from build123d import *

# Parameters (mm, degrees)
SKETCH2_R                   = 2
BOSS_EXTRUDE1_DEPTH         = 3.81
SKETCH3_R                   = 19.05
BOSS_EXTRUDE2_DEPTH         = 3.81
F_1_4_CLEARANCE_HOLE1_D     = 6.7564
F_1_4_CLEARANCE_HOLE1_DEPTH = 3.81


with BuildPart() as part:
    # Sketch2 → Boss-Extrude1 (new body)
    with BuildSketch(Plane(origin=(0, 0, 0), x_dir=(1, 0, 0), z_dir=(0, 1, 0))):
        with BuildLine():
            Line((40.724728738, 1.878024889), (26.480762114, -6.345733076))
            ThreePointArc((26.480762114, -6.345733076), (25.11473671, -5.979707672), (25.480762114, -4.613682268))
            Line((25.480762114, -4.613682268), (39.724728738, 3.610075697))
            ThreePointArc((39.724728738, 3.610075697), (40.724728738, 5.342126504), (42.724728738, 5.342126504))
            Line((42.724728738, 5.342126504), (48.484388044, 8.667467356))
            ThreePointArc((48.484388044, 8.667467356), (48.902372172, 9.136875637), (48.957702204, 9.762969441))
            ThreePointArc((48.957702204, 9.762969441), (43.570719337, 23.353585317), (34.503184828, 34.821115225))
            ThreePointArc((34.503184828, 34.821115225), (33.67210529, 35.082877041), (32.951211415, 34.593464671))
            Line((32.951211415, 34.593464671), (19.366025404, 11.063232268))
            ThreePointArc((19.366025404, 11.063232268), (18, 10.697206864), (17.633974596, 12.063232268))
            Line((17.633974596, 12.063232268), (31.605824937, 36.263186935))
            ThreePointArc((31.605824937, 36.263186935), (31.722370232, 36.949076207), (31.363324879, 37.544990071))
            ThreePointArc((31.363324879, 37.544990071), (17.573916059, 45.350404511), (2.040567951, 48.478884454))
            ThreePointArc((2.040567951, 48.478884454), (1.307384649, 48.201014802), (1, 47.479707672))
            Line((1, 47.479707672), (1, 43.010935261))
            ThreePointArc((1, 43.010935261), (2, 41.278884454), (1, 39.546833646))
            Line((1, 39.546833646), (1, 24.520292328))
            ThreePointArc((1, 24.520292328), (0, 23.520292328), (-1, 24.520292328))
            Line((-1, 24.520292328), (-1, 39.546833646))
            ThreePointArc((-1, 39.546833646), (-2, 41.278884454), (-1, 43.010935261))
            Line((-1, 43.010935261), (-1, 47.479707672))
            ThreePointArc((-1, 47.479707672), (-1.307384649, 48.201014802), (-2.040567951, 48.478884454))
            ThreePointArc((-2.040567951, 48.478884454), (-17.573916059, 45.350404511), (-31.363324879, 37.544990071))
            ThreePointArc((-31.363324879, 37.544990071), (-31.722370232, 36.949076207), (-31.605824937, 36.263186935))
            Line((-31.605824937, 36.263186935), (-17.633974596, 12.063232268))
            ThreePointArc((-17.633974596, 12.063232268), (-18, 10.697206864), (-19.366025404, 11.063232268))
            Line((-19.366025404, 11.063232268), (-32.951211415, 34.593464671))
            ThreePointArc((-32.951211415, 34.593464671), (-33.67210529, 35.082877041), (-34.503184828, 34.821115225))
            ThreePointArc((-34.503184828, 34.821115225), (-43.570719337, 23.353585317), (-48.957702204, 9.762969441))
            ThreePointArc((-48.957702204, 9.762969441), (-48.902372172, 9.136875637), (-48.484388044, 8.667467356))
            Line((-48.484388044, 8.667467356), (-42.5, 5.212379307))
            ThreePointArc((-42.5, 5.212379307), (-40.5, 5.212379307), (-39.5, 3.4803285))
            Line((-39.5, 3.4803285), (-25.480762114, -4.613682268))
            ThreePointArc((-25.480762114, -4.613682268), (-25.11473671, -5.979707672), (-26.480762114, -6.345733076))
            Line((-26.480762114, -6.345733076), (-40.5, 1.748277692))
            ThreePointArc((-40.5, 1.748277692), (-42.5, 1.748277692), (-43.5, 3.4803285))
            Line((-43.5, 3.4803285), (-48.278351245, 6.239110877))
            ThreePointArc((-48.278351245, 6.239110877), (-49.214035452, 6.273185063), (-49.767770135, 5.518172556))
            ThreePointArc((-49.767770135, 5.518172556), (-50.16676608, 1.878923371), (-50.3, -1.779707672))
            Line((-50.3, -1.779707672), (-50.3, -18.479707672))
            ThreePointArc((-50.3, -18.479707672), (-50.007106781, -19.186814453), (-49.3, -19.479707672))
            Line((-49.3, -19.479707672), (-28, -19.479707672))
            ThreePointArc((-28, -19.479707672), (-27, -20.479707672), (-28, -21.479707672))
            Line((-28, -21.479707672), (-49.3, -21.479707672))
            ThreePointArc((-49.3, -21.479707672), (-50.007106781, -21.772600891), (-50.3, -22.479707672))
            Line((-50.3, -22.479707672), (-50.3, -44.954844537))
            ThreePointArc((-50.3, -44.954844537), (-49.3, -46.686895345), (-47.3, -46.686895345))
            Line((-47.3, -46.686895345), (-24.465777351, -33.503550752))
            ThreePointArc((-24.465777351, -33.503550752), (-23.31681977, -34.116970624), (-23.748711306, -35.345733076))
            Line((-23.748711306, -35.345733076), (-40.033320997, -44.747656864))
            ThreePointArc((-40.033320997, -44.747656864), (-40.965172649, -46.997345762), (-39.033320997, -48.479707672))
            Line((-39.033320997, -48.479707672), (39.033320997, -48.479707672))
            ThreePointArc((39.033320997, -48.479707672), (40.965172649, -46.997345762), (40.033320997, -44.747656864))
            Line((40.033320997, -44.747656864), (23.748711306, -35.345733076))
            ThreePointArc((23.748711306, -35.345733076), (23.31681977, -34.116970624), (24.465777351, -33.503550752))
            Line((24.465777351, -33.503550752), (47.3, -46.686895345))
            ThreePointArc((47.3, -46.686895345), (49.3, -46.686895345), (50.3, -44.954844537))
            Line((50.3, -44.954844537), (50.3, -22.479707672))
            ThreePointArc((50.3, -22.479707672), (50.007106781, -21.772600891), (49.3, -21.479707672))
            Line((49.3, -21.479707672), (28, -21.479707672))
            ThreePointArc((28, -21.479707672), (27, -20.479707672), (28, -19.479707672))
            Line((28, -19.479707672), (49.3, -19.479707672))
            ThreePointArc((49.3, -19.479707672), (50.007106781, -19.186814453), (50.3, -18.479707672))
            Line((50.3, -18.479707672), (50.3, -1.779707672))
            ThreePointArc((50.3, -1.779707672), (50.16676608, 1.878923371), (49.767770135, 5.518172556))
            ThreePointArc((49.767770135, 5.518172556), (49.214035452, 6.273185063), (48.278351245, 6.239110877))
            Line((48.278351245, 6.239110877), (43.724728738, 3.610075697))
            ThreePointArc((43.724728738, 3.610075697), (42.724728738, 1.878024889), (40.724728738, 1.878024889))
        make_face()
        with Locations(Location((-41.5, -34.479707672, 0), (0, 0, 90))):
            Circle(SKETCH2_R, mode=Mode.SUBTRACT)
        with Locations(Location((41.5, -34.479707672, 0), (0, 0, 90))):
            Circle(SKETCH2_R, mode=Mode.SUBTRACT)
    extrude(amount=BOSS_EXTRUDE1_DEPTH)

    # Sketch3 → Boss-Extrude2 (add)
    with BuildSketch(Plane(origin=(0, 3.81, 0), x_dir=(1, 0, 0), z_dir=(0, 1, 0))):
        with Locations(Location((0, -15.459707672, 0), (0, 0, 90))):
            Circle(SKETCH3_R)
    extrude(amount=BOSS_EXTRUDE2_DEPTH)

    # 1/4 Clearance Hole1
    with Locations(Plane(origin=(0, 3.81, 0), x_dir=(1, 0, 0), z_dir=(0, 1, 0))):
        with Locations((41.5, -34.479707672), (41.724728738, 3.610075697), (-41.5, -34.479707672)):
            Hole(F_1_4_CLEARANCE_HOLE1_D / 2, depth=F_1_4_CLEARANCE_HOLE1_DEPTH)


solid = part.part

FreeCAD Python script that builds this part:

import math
import FreeCAD as App
import Part
import Sketcher
Q = App.Units.Quantity

doc = App.newDocument("Part")
body = doc.addObject("PartDesign::Body", "Body")

# Sketch on XZ plane
sketch1 = body.newObject("Sketcher::SketchObject", "Sketch")
sketch1.AttachmentSupport = (doc.getObject("XZ_Plane"), [""])
sketch1.MapMode = "FlatFace"
sketch1.addGeometry(Part.LineSegment(App.Vector(40.7, -1.9, 0), App.Vector(26.5, 6.3, 0)), False)
sketch1.addGeometry(Part.ArcOfCircle(Part.Circle(App.Vector(26, 5.5, 0), App.Vector(0, 0, 1), 1), math.radians(60), math.radians(240)), False)
sketch1.addGeometry(Part.LineSegment(App.Vector(25.5, 4.6, 0), App.Vector(39.7, -3.6, 0)), False)
sketch1.addGeometry(Part.ArcOfCircle(Part.Circle(App.Vector(41.7, -3.6, 0), App.Vector(0, 0, 1), 2), math.radians(-180), math.radians(-60)), False)
sketch1.addGeometry(Part.LineSegment(App.Vector(42.7, -5.3, 0), App.Vector(48.5, -8.7, 0)), False)
sketch1.addGeometry(Part.ArcOfCircle(Part.Circle(App.Vector(48, -9.5, 0), App.Vector(0, 0, 1), 1), math.radians(-13), math.radians(60)), False)
sketch1.addGeometry(Part.ArcOfCircle(Part.Circle(App.Vector(0, 1.8, 0), App.Vector(0, 0, 1), 50.3), math.radians(-47), math.radians(-13)), False)
sketch1.addGeometry(Part.ArcOfCircle(Part.Circle(App.Vector(33.8, -34.1, 0), App.Vector(0, 0, 1), 1), math.radians(-150), math.radians(-47)), False)
sketch1.addGeometry(Part.LineSegment(App.Vector(33, -34.6, 0), App.Vector(19.4, -11.1, 0)), False)
sketch1.addGeometry(Part.ArcOfCircle(Part.Circle(App.Vector(18.5, -11.6, 0), App.Vector(0, 0, 1), 1), math.radians(30), math.radians(210)), False)
sketch1.addGeometry(Part.LineSegment(App.Vector(17.6, -12.1, 0), App.Vector(31.6, -36.3, 0)), False)
sketch1.addGeometry(Part.ArcOfCircle(Part.Circle(App.Vector(30.7, -36.8, 0), App.Vector(0, 0, 1), 1), math.radians(-51), math.radians(30)), False)
sketch1.addGeometry(Part.ArcOfCircle(Part.Circle(App.Vector(0, 1.8, 0), App.Vector(0, 0, 1), 50.3), math.radians(-88), math.radians(-51)), False)
sketch1.addGeometry(Part.ArcOfCircle(Part.Circle(App.Vector(2, -47.5, 0), App.Vector(0, 0, 1), 1), math.radians(180), math.radians(272)), False)
sketch1.addGeometry(Part.LineSegment(App.Vector(1, -47.5, 0), App.Vector(1, -43, 0)), False)
sketch1.addGeometry(Part.ArcOfCircle(Part.Circle(App.Vector(0, -41.3, 0), App.Vector(0, 0, 1), 2), math.radians(-60), math.radians(60)), False)
sketch1.addGeometry(Part.LineSegment(App.Vector(1, -39.5, 0), App.Vector(1, -24.5, 0)), False)
sketch1.addGeometry(Part.ArcOfCircle(Part.Circle(App.Vector(0, -24.5, 0), App.Vector(0, 0, 1), 1), math.radians(0), math.radians(180)), False)
sketch1.addGeometry(Part.LineSegment(App.Vector(-1, -24.5, 0), App.Vector(-1, -39.5, 0)), False)
sketch1.addGeometry(Part.ArcOfCircle(Part.Circle(App.Vector(0, -41.3, 0), App.Vector(0, 0, 1), 2), math.radians(120), math.radians(240)), False)
sketch1.addGeometry(Part.LineSegment(App.Vector(-1, -43, 0), App.Vector(-1, -47.5, 0)), False)
sketch1.addGeometry(Part.ArcOfCircle(Part.Circle(App.Vector(-2, -47.5, 0), App.Vector(0, 0, 1), 1), math.radians(-92), math.radians(0)), False)
sketch1.addGeometry(Part.ArcOfCircle(Part.Circle(App.Vector(0, 1.8, 0), App.Vector(0, 0, 1), 50.3), math.radians(-129), math.radians(-92)), False)
sketch1.addGeometry(Part.ArcOfCircle(Part.Circle(App.Vector(-30.7, -36.8, 0), App.Vector(0, 0, 1), 1), math.radians(150), math.radians(231)), False)
sketch1.addGeometry(Part.LineSegment(App.Vector(-31.6, -36.3, 0), App.Vector(-17.6, -12.1, 0)), False)
sketch1.addGeometry(Part.ArcOfCircle(Part.Circle(App.Vector(-18.5, -11.6, 0), App.Vector(0, 0, 1), 1), math.radians(-30), math.radians(150)), False)
sketch1.addGeometry(Part.LineSegment(App.Vector(-19.4, -11.1, 0), App.Vector(-33, -34.6, 0)), False)
sketch1.addGeometry(Part.ArcOfCircle(Part.Circle(App.Vector(-33.8, -34.1, 0), App.Vector(0, 0, 1), 1), math.radians(-133), math.radians(-30)), False)
sketch1.addGeometry(Part.ArcOfCircle(Part.Circle(App.Vector(0, 1.8, 0), App.Vector(0, 0, 1), 50.3), math.radians(-167), math.radians(-133)), False)
sketch1.addGeometry(Part.ArcOfCircle(Part.Circle(App.Vector(-48, -9.5, 0), App.Vector(0, 0, 1), 1), math.radians(120), math.radians(193)), False)
sketch1.addGeometry(Part.LineSegment(App.Vector(-48.5, -8.7, 0), App.Vector(-42.5, -5.2, 0)), False)
sketch1.addGeometry(Part.ArcOfCircle(Part.Circle(App.Vector(-41.5, -3.5, 0), App.Vector(0, 0, 1), 2), math.radians(-120), math.radians(0)), False)
sketch1.addGeometry(Part.LineSegment(App.Vector(-39.5, -3.5, 0), App.Vector(-25.5, 4.6, 0)), False)
sketch1.addGeometry(Part.ArcOfCircle(Part.Circle(App.Vector(-26, 5.5, 0), App.Vector(0, 0, 1), 1), math.radians(-60), math.radians(120)), False)
sketch1.addGeometry(Part.LineSegment(App.Vector(-26.5, 6.3, 0), App.Vector(-40.5, -1.7, 0)), False)
sketch1.addGeometry(Part.ArcOfCircle(Part.Circle(App.Vector(-41.5, -3.5, 0), App.Vector(0, 0, 1), 2), math.radians(60), math.radians(180)), False)
sketch1.addGeometry(Part.LineSegment(App.Vector(-43.5, -3.5, 0), App.Vector(-48.3, -6.2, 0)), False)
sketch1.addGeometry(Part.ArcOfCircle(Part.Circle(App.Vector(-48.8, -5.4, 0), App.Vector(0, 0, 1), 1), math.radians(-172), math.radians(-60)), False)
sketch1.addGeometry(Part.ArcOfCircle(Part.Circle(App.Vector(0, 1.8, 0), App.Vector(0, 0, 1), 50.3), math.radians(180), math.radians(188.34)), False)
sketch1.addGeometry(Part.LineSegment(App.Vector(-50.3, 1.8, 0), App.Vector(-50.3, 18.5, 0)), False)
sketch1.addGeometry(Part.ArcOfCircle(Part.Circle(App.Vector(-49.3, 18.5, 0), App.Vector(0, 0, 1), 1), math.radians(90), math.radians(180)), False)
sketch1.addGeometry(Part.LineSegment(App.Vector(-49.3, 19.5, 0), App.Vector(-28, 19.5, 0)), False)
sketch1.addGeometry(Part.ArcOfCircle(Part.Circle(App.Vector(-28, 20.5, 0), App.Vector(0, 0, 1), 1), math.radians(-90), math.radians(90)), False)
sketch1.addGeometry(Part.LineSegment(App.Vector(-28, 21.5, 0), App.Vector(-49.3, 21.5, 0)), False)
sketch1.addGeometry(Part.ArcOfCircle(Part.Circle(App.Vector(-49.3, 22.5, 0), App.Vector(0, 0, 1), 1), math.radians(-180), math.radians(-90)), False)
sketch1.addGeometry(Part.LineSegment(App.Vector(-50.3, 22.5, 0), App.Vector(-50.3, 45, 0)), False)
sketch1.addGeometry(Part.ArcOfCircle(Part.Circle(App.Vector(-48.3, 45, 0), App.Vector(0, 0, 1), 2), math.radians(60), math.radians(180)), False)
sketch1.addGeometry(Part.LineSegment(App.Vector(-47.3, 46.7, 0), App.Vector(-24.5, 33.5, 0)), False)
sketch1.addGeometry(Part.ArcOfCircle(Part.Circle(App.Vector(-24.2, 34.5, 0), App.Vector(0, 0, 1), 1), math.radians(-103), math.radians(60)), False)
sketch1.addGeometry(Part.LineSegment(App.Vector(-23.7, 35.3, 0), App.Vector(-40, 44.7, 0)), False)
sketch1.addGeometry(Part.ArcOfCircle(Part.Circle(App.Vector(-39, 46.5, 0), App.Vector(0, 0, 1), 2), math.radians(90), math.radians(240)), False)
sketch1.addGeometry(Part.LineSegment(App.Vector(-39, 48.5, 0), App.Vector(39, 48.5, 0)), False)
sketch1.addGeometry(Part.ArcOfCircle(Part.Circle(App.Vector(39, 46.5, 0), App.Vector(0, 0, 1), 2), math.radians(-60), math.radians(90)), False)
sketch1.addGeometry(Part.LineSegment(App.Vector(40, 44.7, 0), App.Vector(23.7, 35.3, 0)), False)
sketch1.addGeometry(Part.ArcOfCircle(Part.Circle(App.Vector(24.2, 34.5, 0), App.Vector(0, 0, 1), 1), math.radians(120), math.radians(283)), False)
sketch1.addGeometry(Part.LineSegment(App.Vector(24.5, 33.5, 0), App.Vector(47.3, 46.7, 0)), False)
sketch1.addGeometry(Part.ArcOfCircle(Part.Circle(App.Vector(48.3, 45, 0), App.Vector(0, 0, 1), 2), math.radians(0), math.radians(120)), False)
sketch1.addGeometry(Part.LineSegment(App.Vector(50.3, 45, 0), App.Vector(50.3, 22.5, 0)), False)
sketch1.addGeometry(Part.ArcOfCircle(Part.Circle(App.Vector(49.3, 22.5, 0), App.Vector(0, 0, 1), 1), math.radians(-90), math.radians(0)), False)
sketch1.addGeometry(Part.LineSegment(App.Vector(49.3, 21.5, 0), App.Vector(28, 21.5, 0)), False)
sketch1.addGeometry(Part.ArcOfCircle(Part.Circle(App.Vector(28, 20.5, 0), App.Vector(0, 0, 1), 1), math.radians(90), math.radians(270)), False)
sketch1.addGeometry(Part.LineSegment(App.Vector(28, 19.5, 0), App.Vector(49.3, 19.5, 0)), False)
sketch1.addGeometry(Part.ArcOfCircle(Part.Circle(App.Vector(49.3, 18.5, 0), App.Vector(0, 0, 1), 1), math.radians(0), math.radians(90)), False)
sketch1.addGeometry(Part.LineSegment(App.Vector(50.3, 18.5, 0), App.Vector(50.3, 1.8, 0)), False)
sketch1.addGeometry(Part.ArcOfCircle(Part.Circle(App.Vector(0, 1.8, 0), App.Vector(0, 0, 1), 50.3), math.radians(-8.34), math.radians(0)), False)
sketch1.addGeometry(Part.ArcOfCircle(Part.Circle(App.Vector(48.8, -5.4, 0), App.Vector(0, 0, 1), 1), math.radians(-120), math.radians(-8)), False)
sketch1.addGeometry(Part.LineSegment(App.Vector(48.3, -6.2, 0), App.Vector(43.7, -3.6, 0)), False)
sketch1.addGeometry(Part.ArcOfCircle(Part.Circle(App.Vector(41.7, -3.6, 0), App.Vector(0, 0, 1), 2), math.radians(0), math.radians(120)), False)
sketch1.addGeometry(Part.Circle(App.Vector(-41.5, 34.5, 0), App.Vector(0, 0, 1), 2), False)
sketch1.addGeometry(Part.Circle(App.Vector(41.5, 34.5, 0), App.Vector(0, 0, 1), 2), False)
sketch1.addConstraint(Sketcher.Constraint("Tangent", 0, 2, 1, 1))
sketch1.addConstraint(Sketcher.Constraint("Tangent", 1, 2, 2, 1))
sketch1.addConstraint(Sketcher.Constraint("Coincident", 2, 2, 3, 1))
sketch1.addConstraint(Sketcher.Constraint("Coincident", 3, 2, 4, 1))
sketch1.addConstraint(Sketcher.Constraint("Tangent", 4, 2, 5, 2))
sketch1.addConstraint(Sketcher.Constraint("Tangent", 5, 1, 6, 2))
sketch1.addConstraint(Sketcher.Constraint("Tangent", 6, 1, 7, 2))
sketch1.addConstraint(Sketcher.Constraint("Tangent", 7, 1, 8, 1))
sketch1.addConstraint(Sketcher.Constraint("Tangent", 8, 2, 9, 1))
sketch1.addConstraint(Sketcher.Constraint("Tangent", 9, 2, 10, 1))
sketch1.addConstraint(Sketcher.Constraint("Tangent", 10, 2, 11, 2))
sketch1.addConstraint(Sketcher.Constraint("Tangent", 11, 1, 12, 2))
sketch1.addConstraint(Sketcher.Constraint("Tangent", 12, 1, 13, 2))
sketch1.addConstraint(Sketcher.Constraint("Tangent", 13, 1, 14, 1))
sketch1.addConstraint(Sketcher.Constraint("Coincident", 14, 2, 15, 1))
sketch1.addConstraint(Sketcher.Constraint("Coincident", 15, 2, 16, 1))
sketch1.addConstraint(Sketcher.Constraint("Tangent", 16, 2, 17, 1))
sketch1.addConstraint(Sketcher.Constraint("Tangent", 17, 2, 18, 1))
sketch1.addConstraint(Sketcher.Constraint("Coincident", 18, 2, 19, 1))
sketch1.addConstraint(Sketcher.Constraint("Coincident", 19, 2, 20, 1))
sketch1.addConstraint(Sketcher.Constraint("Tangent", 20, 2, 21, 2))
sketch1.addConstraint(Sketcher.Constraint("Tangent", 21, 1, 22, 2))
sketch1.addConstraint(Sketcher.Constraint("Tangent", 22, 1, 23, 2))
sketch1.addConstraint(Sketcher.Constraint("Tangent", 23, 1, 24, 1))
sketch1.addConstraint(Sketcher.Constraint("Tangent", 24, 2, 25, 1))
sketch1.addConstraint(Sketcher.Constraint("Tangent", 25, 2, 26, 1))
sketch1.addConstraint(Sketcher.Constraint("Tangent", 26, 2, 27, 2))
sketch1.addConstraint(Sketcher.Constraint("Tangent", 27, 1, 28, 2))
sketch1.addConstraint(Sketcher.Constraint("Tangent", 28, 1, 29, 2))
sketch1.addConstraint(Sketcher.Constraint("Tangent", 29, 1, 30, 1))
sketch1.addConstraint(Sketcher.Constraint("Coincident", 30, 2, 31, 1))
sketch1.addConstraint(Sketcher.Constraint("Coincident", 31, 2, 32, 1))
sketch1.addConstraint(Sketcher.Constraint("Tangent", 32, 2, 33, 1))
sketch1.addConstraint(Sketcher.Constraint("Tangent", 33, 2, 34, 1))
sketch1.addConstraint(Sketcher.Constraint("Coincident", 34, 2, 35, 1))
sketch1.addConstraint(Sketcher.Constraint("Coincident", 35, 2, 36, 1))
sketch1.addConstraint(Sketcher.Constraint("Tangent", 36, 2, 37, 2))
sketch1.addConstraint(Sketcher.Constraint("Tangent", 37, 1, 38, 2))
sketch1.addConstraint(Sketcher.Constraint("Tangent", 38, 1, 39, 1))
sketch1.addConstraint(Sketcher.Constraint("Tangent", 39, 2, 40, 2))
sketch1.addConstraint(Sketcher.Constraint("Tangent", 40, 1, 41, 1))
sketch1.addConstraint(Sketcher.Constraint("Tangent", 41, 2, 42, 1))
sketch1.addConstraint(Sketcher.Constraint("Tangent", 42, 2, 43, 1))
sketch1.addConstraint(Sketcher.Constraint("Tangent", 43, 2, 44, 2))
sketch1.addConstraint(Sketcher.Constraint("Tangent", 44, 1, 45, 1))
sketch1.addConstraint(Sketcher.Constraint("Tangent", 45, 2, 46, 2))
sketch1.addConstraint(Sketcher.Constraint("Tangent", 46, 1, 47, 1))
sketch1.addConstraint(Sketcher.Constraint("Coincident", 47, 2, 48, 1))
sketch1.addConstraint(Sketcher.Constraint("Tangent", 48, 2, 49, 1))
sketch1.addConstraint(Sketcher.Constraint("Tangent", 49, 2, 50, 2))
sketch1.addConstraint(Sketcher.Constraint("Tangent", 50, 1, 51, 1))
sketch1.addConstraint(Sketcher.Constraint("Tangent", 51, 2, 52, 2))
sketch1.addConstraint(Sketcher.Constraint("Tangent", 52, 1, 53, 1))
sketch1.addConstraint(Sketcher.Constraint("Tangent", 53, 2, 54, 1))
sketch1.addConstraint(Sketcher.Constraint("Coincident", 54, 2, 55, 1))
sketch1.addConstraint(Sketcher.Constraint("Tangent", 55, 2, 56, 2))
sketch1.addConstraint(Sketcher.Constraint("Tangent", 56, 1, 57, 1))
sketch1.addConstraint(Sketcher.Constraint("Tangent", 57, 2, 58, 2))
sketch1.addConstraint(Sketcher.Constraint("Tangent", 58, 1, 59, 1))
sketch1.addConstraint(Sketcher.Constraint("Tangent", 59, 2, 60, 1))
sketch1.addConstraint(Sketcher.Constraint("Tangent", 60, 2, 61, 1))
sketch1.addConstraint(Sketcher.Constraint("Tangent", 61, 2, 62, 2))
sketch1.addConstraint(Sketcher.Constraint("Tangent", 62, 1, 63, 1))
sketch1.addConstraint(Sketcher.Constraint("Tangent", 63, 2, 64, 2))
sketch1.addConstraint(Sketcher.Constraint("Tangent", 64, 1, 65, 2))
sketch1.addConstraint(Sketcher.Constraint("Tangent", 65, 1, 66, 1))
sketch1.addConstraint(Sketcher.Constraint("Coincident", 66, 2, 67, 1))
sketch1.addConstraint(Sketcher.Constraint("Coincident", 67, 2, 0, 1))
sketch1.addConstraint(Sketcher.Constraint("Vertical", 14))
sketch1.addConstraint(Sketcher.Constraint("Vertical", 16))
sketch1.addConstraint(Sketcher.Constraint("Vertical", 18))
sketch1.addConstraint(Sketcher.Constraint("Vertical", 20))
sketch1.addConstraint(Sketcher.Constraint("Vertical", 39))
sketch1.addConstraint(Sketcher.Constraint("Horizontal", 41))
sketch1.addConstraint(Sketcher.Constraint("Horizontal", 43))
sketch1.addConstraint(Sketcher.Constraint("Vertical", 45))
sketch1.addConstraint(Sketcher.Constraint("Horizontal", 51))
sketch1.addConstraint(Sketcher.Constraint("Vertical", 57))
sketch1.addConstraint(Sketcher.Constraint("Horizontal", 59))
sketch1.addConstraint(Sketcher.Constraint("Horizontal", 61))
sketch1.addConstraint(Sketcher.Constraint("Vertical", 63))
sketch1.addConstraint(Sketcher.Constraint("Coincident", 12, 3, 6, 3))
sketch1.addConstraint(Sketcher.Constraint("Coincident", 19, 3, 15, 3))
sketch1.addConstraint(Sketcher.Constraint("Coincident", 22, 3, 6, 3))
sketch1.addConstraint(Sketcher.Constraint("Coincident", 28, 3, 6, 3))
sketch1.addConstraint(Sketcher.Constraint("Coincident", 35, 3, 31, 3))
sketch1.addConstraint(Sketcher.Constraint("Coincident", 38, 3, 6, 3))
sketch1.addConstraint(Sketcher.Constraint("Coincident", 64, 3, 6, 3))
sketch1.addConstraint(Sketcher.Constraint("Coincident", 67, 3, 3, 3))
sketch1.addConstraint(Sketcher.Constraint("Equal", 1, 5))
sketch1.addConstraint(Sketcher.Constraint("Equal", 5, 7))
sketch1.addConstraint(Sketcher.Constraint("Equal", 7, 9))
sketch1.addConstraint(Sketcher.Constraint("Equal", 9, 11))
sketch1.addConstraint(Sketcher.Constraint("Equal", 6, 12))
sketch1.addConstraint(Sketcher.Constraint("Equal", 11, 13))
sketch1.addConstraint(Sketcher.Constraint("Equal", 3, 15))
sketch1.addConstraint(Sketcher.Constraint("Equal", 13, 17))
sketch1.addConstraint(Sketcher.Constraint("Equal", 15, 19))
sketch1.addConstraint(Sketcher.Constraint("Equal", 17, 21))
sketch1.addConstraint(Sketcher.Constraint("Equal", 12, 22))
sketch1.addConstraint(Sketcher.Constraint("Equal", 21, 23))
sketch1.addConstraint(Sketcher.Constraint("Equal", 23, 25))
sketch1.addConstraint(Sketcher.Constraint("Equal", 25, 27))
sketch1.addConstraint(Sketcher.Constraint("Equal", 22, 28))
sketch1.addConstraint(Sketcher.Constraint("Equal", 27, 29))
sketch1.addConstraint(Sketcher.Constraint("Equal", 19, 31))
sketch1.addConstraint(Sketcher.Constraint("Equal", 29, 33))
sketch1.addConstraint(Sketcher.Constraint("Equal", 31, 35))
sketch1.addConstraint(Sketcher.Constraint("Equal", 33, 37))
sketch1.addConstraint(Sketcher.Constraint("Equal", 28, 38))
sketch1.addConstraint(Sketcher.Constraint("Equal", 37, 40))
sketch1.addConstraint(Sketcher.Constraint("Equal", 40, 42))
sketch1.addConstraint(Sketcher.Constraint("Equal", 42, 44))
sketch1.addConstraint(Sketcher.Constraint("Equal", 35, 46))
sketch1.addConstraint(Sketcher.Constraint("Equal", 44, 48))
sketch1.addConstraint(Sketcher.Constraint("Equal", 46, 50))
sketch1.addConstraint(Sketcher.Constraint("Equal", 50, 52))
sketch1.addConstraint(Sketcher.Constraint("Equal", 48, 54))
sketch1.addConstraint(Sketcher.Constraint("Equal", 52, 56))
sketch1.addConstraint(Sketcher.Constraint("Equal", 54, 58))
sketch1.addConstraint(Sketcher.Constraint("Equal", 58, 60))
sketch1.addConstraint(Sketcher.Constraint("Equal", 60, 62))
sketch1.addConstraint(Sketcher.Constraint("Equal", 38, 64))
sketch1.addConstraint(Sketcher.Constraint("Equal", 62, 65))
sketch1.addConstraint(Sketcher.Constraint("Equal", 56, 67))
sketch1.addConstraint(Sketcher.Constraint("Equal", 67, 68))
sketch1.addConstraint(Sketcher.Constraint("Equal", 68, 69))
sketch1.addConstraint(Sketcher.Constraint("Symmetric", 13, 3, 21, 3, -2))
sketch1.addConstraint(Sketcher.Constraint("Symmetric", 9, 3, 25, 3, -2))
sketch1.addConstraint(Sketcher.Constraint("Symmetric", 1, 3, 33, 3, -2))
sketch1.addConstraint(Sketcher.Constraint("Symmetric", 48, 3, 54, 3, -2))
sketch1.addConstraint(Sketcher.Constraint("Symmetric", 46, 3, 56, 3, -2))
sketch1.addConstraint(Sketcher.Constraint("Symmetric", 42, 3, 60, 3, -2))
sketch1.addConstraint(Sketcher.Constraint("Symmetric", 68, 3, 69, 3, -2))
sketch1.addConstraint(Sketcher.Constraint("Symmetric", 15, 2, 18, 2, -2))
sketch1.addConstraint(Sketcher.Constraint("Symmetric", 4, 2, 29, 1, -2))
sketch1.addConstraint(Sketcher.Constraint("Symmetric", 36, 2, 65, 1, -2))
sketch1.addConstraint(Sketcher.Constraint("Parallel", 0, 2))
sketch1.addConstraint(Sketcher.Constraint("Parallel", 2, 4))
sketch1.addConstraint(Sketcher.Constraint("Parallel", 8, 10))
sketch1.addConstraint(Sketcher.Constraint("Perpendicular", 4, 24))
sketch1.addConstraint(Sketcher.Constraint("Parallel", 24, 26))
sketch1.addConstraint(Sketcher.Constraint("Perpendicular", 10, 30))
sketch1.addConstraint(Sketcher.Constraint("Parallel", 30, 32))
sketch1.addConstraint(Sketcher.Constraint("Parallel", 32, 34))
sketch1.addConstraint(Sketcher.Constraint("Parallel", 34, 36))
sketch1.addConstraint(Sketcher.Constraint("Perpendicular", 26, 47))
sketch1.addConstraint(Sketcher.Constraint("Parallel", 47, 49))
sketch1.addConstraint(Sketcher.Constraint("Parallel", 36, 53))
sketch1.addConstraint(Sketcher.Constraint("Parallel", 53, 55))
sketch1.addConstraint(Sketcher.Constraint("Horizontal", 54, 3, 68, 3))
sketch1.addConstraint(Sketcher.Constraint("Horizontal", 67, 3, 2, 2))
sketch1.addConstraint(Sketcher.Constraint("Horizontal", 35, 3, 31, 2))
sketch1.addConstraint(Sketcher.Constraint("Horizontal", 31, 2, 35, 2))
sketch1.addConstraint(Sketcher.Constraint("Vertical", 40, 3, 44, 3))
sketch1.addConstraint(Sketcher.Constraint("Vertical", 35, 3, 68, 3))
sketch1.addConstraint(Sketcher.Constraint("Vertical", 14, 2, 15, 2))
sketch1.addConstraint(Sketcher.Constraint("Equal", 0, 2))
sketch1.addConstraint(Sketcher.Constraint("Diameter", 68, Q("4 mm")))
sketch1.addConstraint(Sketcher.Constraint("Radius", 1, Q("1 mm")))
sketch1.addConstraint(Sketcher.Constraint("Radius", 6, Q("50.3 mm")))
sketch1.addConstraint(Sketcher.Constraint("DistanceX", 41, 1, 41, 2, Q("21.3 mm")))
sketch1.addConstraint(Sketcher.Constraint("DistanceY", 39, 1, 39, 2, Q("16.7 mm")))
sketch1.addConstraint(Sketcher.Constraint("DistanceX", -1, 1, 9, 3, Q("18.5 mm")))
sketch1.addConstraint(Sketcher.Constraint("DistanceX", 31, 3, -1, 1, Q("41.5 mm")))
sketch1.addConstraint(Sketcher.Constraint("DistanceX", 30, 2, -1, 1, Q("42.5 mm")))
sketch1.addConstraint(Sketcher.Constraint("Distance", 10, Q("27.943701 mm")))
sketch1.addConstraint(Sketcher.Constraint("DistanceX", 51, 1, 51, 2, Q("78.066642 mm")))
sketch1.addConstraint(Sketcher.Constraint("DistanceY", 16, 1, 16, 2, Q("15.026541 mm")))
sketch1.addConstraint(Sketcher.Constraint("Distance", 4, Q("6.650682 mm")))
sketch1.addConstraint(Sketcher.Constraint("Distance", 32, Q("16.188022 mm")))
sketch1.addConstraint(Sketcher.Constraint("Distance", 47, Q("26.366689 mm")))
sketch1.addConstraint(Sketcher.Constraint("Distance", 66, Q("5.25807 mm")))
sketch1.addConstraint(Sketcher.Constraint("DistanceY", 14, 1, 14, 2, Q("4.468772 mm")))
sketch1.addConstraint(Sketcher.Constraint("DistanceY", 45, 1, 45, 2, Q("22.475137 mm")))
sketch1.addConstraint(Sketcher.Constraint("DistanceY", 31, 3, -1, 1, Q("3.480328 mm")))
sketch1.addConstraint(Sketcher.Constraint("DistanceX", 48, 3, -1, 1, Q("24.248711 mm")))
pad1 = body.newObject("PartDesign::Pad", "Pad")
pad1.Profile = sketch1
pad1.Length = 3.81
pad1.Reversed = True

# Sketch on XZ plane
sketch2 = body.newObject("Sketcher::SketchObject", "Sketch001")
sketch2.AttachmentSupport = (doc.getObject("XZ_Plane"), [""])
sketch2.MapMode = "FlatFace"
sketch2.AttachmentOffset = App.Placement(App.Vector(0, 0, -3.81), App.Rotation())
sketch2.addGeometry(Part.Circle(App.Vector(0, 15, 0), App.Vector(0, 0, 1), 19), False)
sketch2.addConstraint(Sketcher.Constraint("PointOnObject", 0, 3, -2))
sketch2.addConstraint(Sketcher.Constraint("Diameter", 0, Q("38.1 mm")))
sketch2.addConstraint(Sketcher.Constraint("DistanceY", -1, 1, 0, 3, Q("15.459708 mm")))
pad2 = body.newObject("PartDesign::Pad", "Pad001")
pad2.Profile = sketch2
pad2.Length = 3.81
pad2.Reversed = True

# Sketch on XZ plane
sketch3 = body.newObject("Sketcher::SketchObject", "Sketch002")
sketch3.AttachmentSupport = (doc.getObject("XZ_Plane"), [""])
sketch3.MapMode = "FlatFace"
sketch3.AttachmentOffset = App.Placement(App.Vector(0, 0, -3.81), App.Rotation())
sketch3.addGeometry(Part.Circle(App.Vector(41.5, 34.5, 0), App.Vector(0, 0, 1), 3.4), False)
sketch3.addGeometry(Part.Circle(App.Vector(41.7, -3.6, 0), App.Vector(0, 0, 1), 3.4), False)
sketch3.addGeometry(Part.Circle(App.Vector(-41.5, 34.5, 0), App.Vector(0, 0, 1), 3.4), False)
sketch3.addConstraint(Sketcher.Constraint("Equal", 0, 1))
sketch3.addConstraint(Sketcher.Constraint("Equal", 1, 2))
sketch3.addConstraint(Sketcher.Constraint("Symmetric", 0, 3, 2, 3, -2))
sketch3.addConstraint(Sketcher.Constraint("DistanceX", 2, 3, 0, 3, Q("83 mm")))
sketch3.addConstraint(Sketcher.Constraint("Diameter", 0, Q("6.7564 mm")))
sketch3.addConstraint(Sketcher.Constraint("DistanceX", -1, 1, 1, 3, Q("41.724729 mm")))
sketch3.addConstraint(Sketcher.Constraint("DistanceY", -1, 1, 0, 3, Q("34.479708 mm")))
sketch3.addConstraint(Sketcher.Constraint("DistanceY", 1, 3, -1, 1, Q("3.610076 mm")))
doc.recompute()
hole = body.newObject("PartDesign::Hole", "Hole")
hole.Profile = sketch3
hole.ThreadType = "None"
hole.Diameter = 6.7564
hole.DepthType = "Dimension"
hole.Depth = 3.81
hole.DrillPoint = "Flat"
hole.Reversed = True

doc.recompute()
